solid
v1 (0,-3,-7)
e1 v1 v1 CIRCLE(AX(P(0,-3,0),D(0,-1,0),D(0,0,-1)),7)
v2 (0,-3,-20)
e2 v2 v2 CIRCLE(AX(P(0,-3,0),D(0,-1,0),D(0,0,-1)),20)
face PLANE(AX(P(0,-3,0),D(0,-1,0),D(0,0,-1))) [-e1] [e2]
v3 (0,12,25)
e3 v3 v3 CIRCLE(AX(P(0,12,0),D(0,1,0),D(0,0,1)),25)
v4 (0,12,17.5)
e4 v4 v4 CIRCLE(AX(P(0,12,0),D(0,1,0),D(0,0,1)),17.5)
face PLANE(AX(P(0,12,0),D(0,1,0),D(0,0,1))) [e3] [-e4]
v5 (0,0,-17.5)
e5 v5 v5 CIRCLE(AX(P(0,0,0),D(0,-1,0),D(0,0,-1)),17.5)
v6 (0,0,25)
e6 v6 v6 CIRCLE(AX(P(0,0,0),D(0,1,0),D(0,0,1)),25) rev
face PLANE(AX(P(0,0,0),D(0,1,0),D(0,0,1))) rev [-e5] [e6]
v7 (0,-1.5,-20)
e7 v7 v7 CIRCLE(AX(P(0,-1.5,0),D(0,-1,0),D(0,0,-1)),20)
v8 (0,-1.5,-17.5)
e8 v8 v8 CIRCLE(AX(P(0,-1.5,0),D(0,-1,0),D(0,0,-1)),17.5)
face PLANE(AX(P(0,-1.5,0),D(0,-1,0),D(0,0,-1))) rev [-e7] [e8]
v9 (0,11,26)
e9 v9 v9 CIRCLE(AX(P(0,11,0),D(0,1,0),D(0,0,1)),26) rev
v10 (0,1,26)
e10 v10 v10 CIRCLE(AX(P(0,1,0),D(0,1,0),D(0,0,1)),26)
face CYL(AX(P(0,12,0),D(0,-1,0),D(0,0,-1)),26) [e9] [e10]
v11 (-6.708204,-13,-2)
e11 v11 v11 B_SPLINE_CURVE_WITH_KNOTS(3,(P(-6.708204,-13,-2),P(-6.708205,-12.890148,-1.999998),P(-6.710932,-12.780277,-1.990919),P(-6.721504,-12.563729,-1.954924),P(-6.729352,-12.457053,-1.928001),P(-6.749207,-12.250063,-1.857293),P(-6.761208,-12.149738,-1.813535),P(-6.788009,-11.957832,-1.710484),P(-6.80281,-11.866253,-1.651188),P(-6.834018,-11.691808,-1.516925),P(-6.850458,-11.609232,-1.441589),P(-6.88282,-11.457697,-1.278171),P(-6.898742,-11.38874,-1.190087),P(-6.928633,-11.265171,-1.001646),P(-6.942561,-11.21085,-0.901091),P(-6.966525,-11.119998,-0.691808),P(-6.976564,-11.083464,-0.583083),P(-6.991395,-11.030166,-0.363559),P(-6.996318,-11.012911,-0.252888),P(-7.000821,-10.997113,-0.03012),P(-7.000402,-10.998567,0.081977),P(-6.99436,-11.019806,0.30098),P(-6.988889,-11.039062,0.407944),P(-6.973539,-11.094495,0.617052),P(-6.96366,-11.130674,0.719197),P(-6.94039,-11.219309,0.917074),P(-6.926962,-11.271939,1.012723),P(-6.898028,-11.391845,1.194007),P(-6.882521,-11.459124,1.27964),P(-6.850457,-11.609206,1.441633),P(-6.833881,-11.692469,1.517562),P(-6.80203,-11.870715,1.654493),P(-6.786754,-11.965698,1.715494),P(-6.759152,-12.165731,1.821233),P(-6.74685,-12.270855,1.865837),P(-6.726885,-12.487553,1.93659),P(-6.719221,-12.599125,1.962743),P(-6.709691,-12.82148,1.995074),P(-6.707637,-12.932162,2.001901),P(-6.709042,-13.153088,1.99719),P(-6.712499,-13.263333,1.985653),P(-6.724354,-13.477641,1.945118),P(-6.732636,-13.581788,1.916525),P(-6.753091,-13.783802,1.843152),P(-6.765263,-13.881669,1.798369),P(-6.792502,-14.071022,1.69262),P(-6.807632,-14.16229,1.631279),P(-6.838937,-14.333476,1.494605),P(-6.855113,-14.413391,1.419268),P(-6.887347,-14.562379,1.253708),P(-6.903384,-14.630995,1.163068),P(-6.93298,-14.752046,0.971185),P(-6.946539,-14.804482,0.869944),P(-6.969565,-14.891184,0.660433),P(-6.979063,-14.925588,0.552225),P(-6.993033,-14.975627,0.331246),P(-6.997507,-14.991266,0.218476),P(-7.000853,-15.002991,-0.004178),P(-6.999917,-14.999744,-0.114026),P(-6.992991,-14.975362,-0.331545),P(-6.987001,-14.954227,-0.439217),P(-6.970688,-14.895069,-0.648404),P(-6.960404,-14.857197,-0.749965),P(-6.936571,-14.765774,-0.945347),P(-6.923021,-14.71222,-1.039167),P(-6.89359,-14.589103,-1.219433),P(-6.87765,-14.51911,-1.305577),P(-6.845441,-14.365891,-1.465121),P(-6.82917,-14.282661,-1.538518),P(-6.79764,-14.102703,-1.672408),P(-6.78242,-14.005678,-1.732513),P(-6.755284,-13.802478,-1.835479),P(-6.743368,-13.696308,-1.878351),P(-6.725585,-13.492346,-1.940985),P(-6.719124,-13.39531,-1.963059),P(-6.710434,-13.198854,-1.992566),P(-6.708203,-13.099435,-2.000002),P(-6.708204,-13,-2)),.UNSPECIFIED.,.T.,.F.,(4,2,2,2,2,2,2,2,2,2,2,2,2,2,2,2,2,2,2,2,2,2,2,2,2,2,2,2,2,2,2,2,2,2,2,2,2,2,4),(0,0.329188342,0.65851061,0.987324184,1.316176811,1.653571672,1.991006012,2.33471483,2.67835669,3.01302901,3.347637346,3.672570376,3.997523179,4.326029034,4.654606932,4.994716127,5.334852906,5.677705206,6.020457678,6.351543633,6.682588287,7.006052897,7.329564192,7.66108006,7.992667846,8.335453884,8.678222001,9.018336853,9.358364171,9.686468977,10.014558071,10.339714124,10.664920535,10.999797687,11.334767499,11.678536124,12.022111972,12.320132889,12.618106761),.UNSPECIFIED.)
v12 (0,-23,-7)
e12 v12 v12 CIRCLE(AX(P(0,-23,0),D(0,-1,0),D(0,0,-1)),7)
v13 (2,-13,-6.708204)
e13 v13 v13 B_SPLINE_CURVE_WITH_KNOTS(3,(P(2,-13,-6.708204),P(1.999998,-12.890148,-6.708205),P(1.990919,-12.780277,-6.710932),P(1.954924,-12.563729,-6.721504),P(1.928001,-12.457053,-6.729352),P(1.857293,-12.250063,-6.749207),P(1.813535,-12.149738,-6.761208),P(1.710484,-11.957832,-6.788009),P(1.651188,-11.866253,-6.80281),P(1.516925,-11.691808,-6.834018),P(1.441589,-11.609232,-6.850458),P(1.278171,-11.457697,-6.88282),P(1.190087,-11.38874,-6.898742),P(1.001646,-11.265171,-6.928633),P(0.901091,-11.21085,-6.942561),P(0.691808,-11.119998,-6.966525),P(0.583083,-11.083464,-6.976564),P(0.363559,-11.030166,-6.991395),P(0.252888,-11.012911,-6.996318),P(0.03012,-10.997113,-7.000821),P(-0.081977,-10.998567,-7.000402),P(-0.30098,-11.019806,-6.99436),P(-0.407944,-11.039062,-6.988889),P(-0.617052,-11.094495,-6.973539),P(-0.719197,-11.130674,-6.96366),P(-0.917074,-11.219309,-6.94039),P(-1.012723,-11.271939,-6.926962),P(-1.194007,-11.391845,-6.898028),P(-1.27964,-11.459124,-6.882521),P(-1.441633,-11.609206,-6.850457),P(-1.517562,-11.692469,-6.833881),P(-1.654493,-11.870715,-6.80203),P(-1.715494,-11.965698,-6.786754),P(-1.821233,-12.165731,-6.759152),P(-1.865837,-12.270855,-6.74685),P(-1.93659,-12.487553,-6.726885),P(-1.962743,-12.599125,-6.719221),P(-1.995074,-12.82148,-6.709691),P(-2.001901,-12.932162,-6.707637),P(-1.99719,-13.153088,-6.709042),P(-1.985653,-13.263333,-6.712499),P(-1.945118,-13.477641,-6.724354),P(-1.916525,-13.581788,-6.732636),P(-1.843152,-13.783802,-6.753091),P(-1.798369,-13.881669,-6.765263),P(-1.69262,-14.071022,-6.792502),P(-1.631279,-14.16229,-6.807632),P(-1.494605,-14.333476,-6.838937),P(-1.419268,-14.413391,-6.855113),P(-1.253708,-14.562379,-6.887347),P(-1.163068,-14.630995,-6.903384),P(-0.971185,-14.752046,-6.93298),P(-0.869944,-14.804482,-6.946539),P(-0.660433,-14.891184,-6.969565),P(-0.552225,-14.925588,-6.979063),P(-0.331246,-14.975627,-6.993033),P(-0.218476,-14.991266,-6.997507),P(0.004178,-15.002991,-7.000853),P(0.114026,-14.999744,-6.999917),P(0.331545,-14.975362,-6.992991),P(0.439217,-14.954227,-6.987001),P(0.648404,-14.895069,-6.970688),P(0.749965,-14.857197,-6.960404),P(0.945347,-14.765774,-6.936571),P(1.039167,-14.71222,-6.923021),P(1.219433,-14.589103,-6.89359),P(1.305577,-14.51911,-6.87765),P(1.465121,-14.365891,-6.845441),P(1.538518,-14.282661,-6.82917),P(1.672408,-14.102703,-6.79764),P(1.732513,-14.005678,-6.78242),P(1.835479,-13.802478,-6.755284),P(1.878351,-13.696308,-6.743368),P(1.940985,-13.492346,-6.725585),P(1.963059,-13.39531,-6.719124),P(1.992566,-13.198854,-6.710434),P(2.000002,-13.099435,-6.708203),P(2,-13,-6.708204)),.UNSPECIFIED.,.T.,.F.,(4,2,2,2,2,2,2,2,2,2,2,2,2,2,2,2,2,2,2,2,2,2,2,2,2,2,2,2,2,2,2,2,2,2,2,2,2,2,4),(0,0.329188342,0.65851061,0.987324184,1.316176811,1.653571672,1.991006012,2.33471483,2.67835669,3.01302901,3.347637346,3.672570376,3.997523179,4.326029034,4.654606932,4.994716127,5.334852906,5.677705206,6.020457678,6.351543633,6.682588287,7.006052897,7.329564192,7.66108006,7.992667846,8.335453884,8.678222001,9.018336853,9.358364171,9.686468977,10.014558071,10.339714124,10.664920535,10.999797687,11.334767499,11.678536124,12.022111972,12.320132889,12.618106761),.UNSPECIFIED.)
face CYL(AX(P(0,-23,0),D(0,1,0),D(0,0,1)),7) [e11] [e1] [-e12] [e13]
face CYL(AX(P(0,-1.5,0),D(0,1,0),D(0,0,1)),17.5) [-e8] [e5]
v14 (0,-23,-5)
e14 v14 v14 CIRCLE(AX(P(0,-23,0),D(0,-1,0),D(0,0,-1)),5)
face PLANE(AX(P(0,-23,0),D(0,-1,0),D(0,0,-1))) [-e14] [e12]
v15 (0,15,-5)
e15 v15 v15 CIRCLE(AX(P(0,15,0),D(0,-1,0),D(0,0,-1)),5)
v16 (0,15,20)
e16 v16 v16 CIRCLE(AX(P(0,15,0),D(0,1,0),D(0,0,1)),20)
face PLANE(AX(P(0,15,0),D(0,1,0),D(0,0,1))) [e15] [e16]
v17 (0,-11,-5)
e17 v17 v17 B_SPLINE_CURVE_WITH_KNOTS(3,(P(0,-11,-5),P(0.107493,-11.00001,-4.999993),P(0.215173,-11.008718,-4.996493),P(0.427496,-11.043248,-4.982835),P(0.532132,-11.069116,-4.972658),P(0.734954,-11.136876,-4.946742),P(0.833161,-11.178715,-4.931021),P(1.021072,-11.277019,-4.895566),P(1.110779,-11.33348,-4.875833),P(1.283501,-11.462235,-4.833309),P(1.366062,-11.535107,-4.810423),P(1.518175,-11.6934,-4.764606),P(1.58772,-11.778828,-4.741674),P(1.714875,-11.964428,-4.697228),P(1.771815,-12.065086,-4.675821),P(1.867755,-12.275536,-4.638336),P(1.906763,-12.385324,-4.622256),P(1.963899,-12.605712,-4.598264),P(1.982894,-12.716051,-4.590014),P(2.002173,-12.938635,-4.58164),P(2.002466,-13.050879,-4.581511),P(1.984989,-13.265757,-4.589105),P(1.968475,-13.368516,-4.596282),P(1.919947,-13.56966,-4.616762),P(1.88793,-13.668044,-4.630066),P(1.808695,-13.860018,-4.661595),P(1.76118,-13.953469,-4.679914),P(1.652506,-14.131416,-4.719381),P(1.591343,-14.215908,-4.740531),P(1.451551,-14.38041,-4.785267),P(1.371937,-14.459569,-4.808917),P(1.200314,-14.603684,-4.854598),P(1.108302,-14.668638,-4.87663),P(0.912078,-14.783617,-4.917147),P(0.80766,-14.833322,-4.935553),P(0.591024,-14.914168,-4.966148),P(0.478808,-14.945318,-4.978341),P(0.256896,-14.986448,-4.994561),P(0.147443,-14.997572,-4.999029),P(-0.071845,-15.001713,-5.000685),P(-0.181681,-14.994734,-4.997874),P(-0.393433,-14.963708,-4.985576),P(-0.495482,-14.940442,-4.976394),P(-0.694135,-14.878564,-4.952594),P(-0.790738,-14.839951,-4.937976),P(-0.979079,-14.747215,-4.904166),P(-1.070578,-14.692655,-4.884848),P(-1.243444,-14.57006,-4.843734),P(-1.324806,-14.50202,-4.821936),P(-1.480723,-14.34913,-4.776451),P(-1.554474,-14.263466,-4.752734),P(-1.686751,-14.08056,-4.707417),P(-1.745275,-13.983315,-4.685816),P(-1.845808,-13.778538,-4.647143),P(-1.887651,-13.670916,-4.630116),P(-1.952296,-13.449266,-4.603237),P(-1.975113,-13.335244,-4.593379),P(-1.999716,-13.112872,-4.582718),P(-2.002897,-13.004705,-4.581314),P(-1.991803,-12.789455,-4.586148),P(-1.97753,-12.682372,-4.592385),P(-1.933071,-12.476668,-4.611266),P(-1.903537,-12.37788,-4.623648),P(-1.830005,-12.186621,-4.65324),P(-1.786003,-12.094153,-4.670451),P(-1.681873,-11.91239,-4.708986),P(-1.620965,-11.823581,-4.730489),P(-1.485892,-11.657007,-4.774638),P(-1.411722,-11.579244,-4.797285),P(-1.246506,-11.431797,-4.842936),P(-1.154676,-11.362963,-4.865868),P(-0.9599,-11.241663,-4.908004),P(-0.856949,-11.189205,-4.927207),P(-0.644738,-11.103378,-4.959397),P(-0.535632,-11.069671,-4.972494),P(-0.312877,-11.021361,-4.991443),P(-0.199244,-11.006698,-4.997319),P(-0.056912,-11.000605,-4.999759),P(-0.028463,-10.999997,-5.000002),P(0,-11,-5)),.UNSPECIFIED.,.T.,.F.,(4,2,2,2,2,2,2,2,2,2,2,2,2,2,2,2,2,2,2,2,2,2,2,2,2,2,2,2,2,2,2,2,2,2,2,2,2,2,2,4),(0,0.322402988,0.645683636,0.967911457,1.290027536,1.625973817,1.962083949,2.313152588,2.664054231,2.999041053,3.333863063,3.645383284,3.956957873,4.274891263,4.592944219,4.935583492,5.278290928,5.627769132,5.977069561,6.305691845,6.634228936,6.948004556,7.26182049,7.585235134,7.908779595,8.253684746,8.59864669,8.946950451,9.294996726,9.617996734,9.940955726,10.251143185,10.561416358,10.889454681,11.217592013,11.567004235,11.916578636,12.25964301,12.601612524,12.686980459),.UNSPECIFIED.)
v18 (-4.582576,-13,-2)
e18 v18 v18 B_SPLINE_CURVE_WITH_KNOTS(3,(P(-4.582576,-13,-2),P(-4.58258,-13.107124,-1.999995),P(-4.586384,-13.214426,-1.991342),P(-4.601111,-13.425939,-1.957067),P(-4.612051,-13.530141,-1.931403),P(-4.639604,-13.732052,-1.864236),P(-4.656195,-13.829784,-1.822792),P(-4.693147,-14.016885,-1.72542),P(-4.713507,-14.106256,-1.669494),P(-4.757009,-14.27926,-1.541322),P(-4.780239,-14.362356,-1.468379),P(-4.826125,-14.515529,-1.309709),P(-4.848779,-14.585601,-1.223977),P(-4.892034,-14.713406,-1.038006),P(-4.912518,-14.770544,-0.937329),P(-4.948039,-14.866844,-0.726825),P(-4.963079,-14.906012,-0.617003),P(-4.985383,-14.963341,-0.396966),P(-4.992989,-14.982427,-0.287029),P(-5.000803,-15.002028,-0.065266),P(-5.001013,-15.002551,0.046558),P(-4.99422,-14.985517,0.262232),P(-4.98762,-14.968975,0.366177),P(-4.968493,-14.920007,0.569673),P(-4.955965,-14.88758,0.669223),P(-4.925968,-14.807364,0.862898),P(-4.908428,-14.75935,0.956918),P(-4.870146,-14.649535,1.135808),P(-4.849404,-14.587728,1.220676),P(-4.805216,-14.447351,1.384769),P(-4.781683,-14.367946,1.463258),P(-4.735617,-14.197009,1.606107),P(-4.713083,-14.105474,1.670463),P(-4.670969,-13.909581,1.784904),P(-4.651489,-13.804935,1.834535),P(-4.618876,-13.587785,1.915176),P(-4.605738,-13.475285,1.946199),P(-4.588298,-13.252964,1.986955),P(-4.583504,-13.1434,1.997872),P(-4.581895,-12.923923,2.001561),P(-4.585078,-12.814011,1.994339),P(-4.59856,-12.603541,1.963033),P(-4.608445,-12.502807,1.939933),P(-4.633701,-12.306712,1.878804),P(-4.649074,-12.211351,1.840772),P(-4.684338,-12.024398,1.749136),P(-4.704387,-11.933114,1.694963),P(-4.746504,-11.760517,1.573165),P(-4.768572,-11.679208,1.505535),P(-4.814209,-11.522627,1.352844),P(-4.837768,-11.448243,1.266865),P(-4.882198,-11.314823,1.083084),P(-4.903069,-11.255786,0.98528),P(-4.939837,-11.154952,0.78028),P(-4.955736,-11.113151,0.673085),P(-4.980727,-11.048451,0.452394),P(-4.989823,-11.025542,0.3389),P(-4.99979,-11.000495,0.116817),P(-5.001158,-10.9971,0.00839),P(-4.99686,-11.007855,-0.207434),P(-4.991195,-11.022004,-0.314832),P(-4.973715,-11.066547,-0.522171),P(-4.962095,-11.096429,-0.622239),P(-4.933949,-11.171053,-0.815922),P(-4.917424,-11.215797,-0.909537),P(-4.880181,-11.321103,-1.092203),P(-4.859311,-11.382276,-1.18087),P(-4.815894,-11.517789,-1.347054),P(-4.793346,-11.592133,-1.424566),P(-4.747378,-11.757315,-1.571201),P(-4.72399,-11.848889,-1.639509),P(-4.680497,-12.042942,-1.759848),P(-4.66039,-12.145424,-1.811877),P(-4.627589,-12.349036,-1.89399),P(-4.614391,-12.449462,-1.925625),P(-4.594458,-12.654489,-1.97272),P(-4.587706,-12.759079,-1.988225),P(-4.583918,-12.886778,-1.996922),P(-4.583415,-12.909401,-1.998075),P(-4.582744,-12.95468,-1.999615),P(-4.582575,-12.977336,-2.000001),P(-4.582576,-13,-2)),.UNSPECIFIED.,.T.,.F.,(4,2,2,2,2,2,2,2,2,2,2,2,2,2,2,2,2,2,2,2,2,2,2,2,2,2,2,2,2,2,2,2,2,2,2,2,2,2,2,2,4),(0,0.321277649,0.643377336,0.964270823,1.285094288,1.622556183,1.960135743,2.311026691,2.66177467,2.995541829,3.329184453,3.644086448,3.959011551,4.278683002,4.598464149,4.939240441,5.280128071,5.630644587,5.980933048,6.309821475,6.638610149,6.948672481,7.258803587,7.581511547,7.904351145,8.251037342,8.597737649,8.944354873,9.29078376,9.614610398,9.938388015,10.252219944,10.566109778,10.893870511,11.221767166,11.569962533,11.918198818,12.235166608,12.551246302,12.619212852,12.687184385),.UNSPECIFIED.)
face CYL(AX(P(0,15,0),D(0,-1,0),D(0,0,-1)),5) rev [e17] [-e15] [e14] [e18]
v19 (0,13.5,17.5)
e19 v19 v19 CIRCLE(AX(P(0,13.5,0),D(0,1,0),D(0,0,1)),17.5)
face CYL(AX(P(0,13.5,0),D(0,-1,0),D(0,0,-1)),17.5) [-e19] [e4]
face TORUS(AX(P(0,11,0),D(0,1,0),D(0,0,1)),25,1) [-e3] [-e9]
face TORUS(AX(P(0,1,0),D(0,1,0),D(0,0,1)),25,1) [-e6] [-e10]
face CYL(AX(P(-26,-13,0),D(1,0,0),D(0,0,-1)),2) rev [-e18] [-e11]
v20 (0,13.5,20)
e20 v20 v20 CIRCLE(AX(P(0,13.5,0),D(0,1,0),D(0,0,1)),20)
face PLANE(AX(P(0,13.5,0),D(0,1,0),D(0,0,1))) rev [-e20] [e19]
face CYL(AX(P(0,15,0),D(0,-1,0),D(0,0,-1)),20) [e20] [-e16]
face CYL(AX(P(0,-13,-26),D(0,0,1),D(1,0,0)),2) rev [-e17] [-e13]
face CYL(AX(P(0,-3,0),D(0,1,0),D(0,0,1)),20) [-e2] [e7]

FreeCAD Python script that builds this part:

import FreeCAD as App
import Part
import Sketcher
from FreeCAD import Vector


def edges_at(feature, points):
    """Names of the edges that pass closest to the given points."""
    edges = feature.Shape.Edges
    near = lambda p: min(range(len(edges)), key=lambda i: edges[i].distToShape(Part.Vertex(*p))[0])
    return sorted({f"Edge{near(p) + 1}" for p in points})

doc = App.newDocument("Part")
body = doc.addObject("PartDesign::Body", "Body")

sketch1 = doc.addObject("Sketcher::SketchObject", "Sketch")
body.addObject(sketch1)
sketch1.AttachmentSupport = (doc.XZ_Plane, [""])
sketch1.MapMode = "FlatFace"
sketch1.addGeometry(Part.Circle(Vector(0, 0, 0), Vector(0, 0, 1), 26), False)
sketch1.addConstraint([
    Sketcher.Constraint("Coincident", 0, 3, -1, 1),
    Sketcher.Constraint("Diameter", 0, 52.0),
])
pad1 = doc.addObject("PartDesign::Pad", "Pad")
body.addObject(pad1)
pad1.Profile = sketch1
pad1.Length = 12
pad1.Reversed = True

sketch2 = doc.addObject("Sketcher::SketchObject", "Sketch001")
body.addObject(sketch2)
sketch2.AttachmentSupport = (doc.XZ_Plane, [""])
sketch2.MapMode = "FlatFace"
sketch2.AttachmentOffset = App.Placement(Vector(0, 0, -12), App.Rotation())
sketch2.addGeometry(Part.Circle(Vector(0, 0, 0), Vector(0, 0, 1), 18), False)
sketch2.addConstraint([
    Sketcher.Constraint("Coincident", 0, 3, -1, 1),
    Sketcher.Constraint("Diameter", 0, 35.0),
])
pad2 = doc.addObject("PartDesign::Pad", "Pad001")
body.addObject(pad2)
pad2.Profile = sketch2
pad2.Length = 1.5
pad2.Reversed = True

sketch3 = doc.addObject("Sketcher::SketchObject", "Sketch002")
body.addObject(sketch3)
sketch3.AttachmentSupport = (doc.XZ_Plane, [""])
sketch3.MapMode = "FlatFace"
sketch3.AttachmentOffset = App.Placement(Vector(0, 0, 1.5), App.Rotation())
sketch3.addGeometry(Part.Circle(Vector(0, 0, 0), Vector(0, 0, 1), 18), False)
sketch3.addConstraint([
    Sketcher.Constraint("Coincident", 0, 3, -1, 1),
    Sketcher.Constraint("Diameter", 0, 35.0),
])
pad3 = doc.addObject("PartDesign::Pad", "Pad002")
body.addObject(pad3)
pad3.Profile = sketch3
pad3.Length = 1.5
pad3.Reversed = True

sketch4 = doc.addObject("Sketcher::SketchObject", "Sketch003")
body.addObject(sketch4)
sketch4.AttachmentSupport = (doc.XZ_Plane, [""])
sketch4.MapMode = "FlatFace"
sketch4.AttachmentOffset = App.Placement(Vector(0, 0, -13.5), App.Rotation())
sketch4.addGeometry(Part.Circle(Vector(0, 0, 0), Vector(0, 0, 1), 20), False)
sketch4.addConstraint([
    Sketcher.Constraint("Coincident", 0, 3, -1, 1),
    Sketcher.Constraint("Diameter", 0, 40.0),
])
pad4 = doc.addObject("PartDesign::Pad", "Pad003")
body.addObject(pad4)
pad4.Profile = sketch4
pad4.Length = 1.5
pad4.Reversed = True

sketch5 = doc.addObject("Sketcher::SketchObject", "Sketch004")
body.addObject(sketch5)
sketch5.AttachmentSupport = (doc.XZ_Plane, [""])
sketch5.MapMode = "FlatFace"
sketch5.AttachmentOffset = App.Placement(Vector(0, 0, 3), App.Rotation())
sketch5.addGeometry(Part.Circle(Vector(0, 0, 0), Vector(0, 0, 1), 20), False)
sketch5.addConstraint([
    Sketcher.Constraint("Coincident", 0, 3, -1, 1),
    Sketcher.Constraint("Diameter", 0, 40.0),
])
pad5 = doc.addObject("PartDesign::Pad", "Pad004")
body.addObject(pad5)
pad5.Profile = sketch5
pad5.Length = 1.5
pad5.Reversed = True

sketch6 = doc.addObject("Sketcher::SketchObject", "Sketch005")
body.addObject(sketch6)
sketch6.AttachmentSupport = (doc.XZ_Plane, [""])
sketch6.MapMode = "FlatFace"
sketch6.AttachmentOffset = App.Placement(Vector(0, 0, 3), App.Rotation())
sketch6.addGeometry(Part.Circle(Vector(0, 0, 0), Vector(0, 0, 1), 5), False)
sketch6.addConstraint([
    Sketcher.Constraint("Coincident", 0, 3, -1, 1),
    Sketcher.Constraint("Diameter", 0, 10.0),
])
pocket1 = doc.addObject("PartDesign::Pocket", "Pocket")
body.addObject(pocket1)
pocket1.Profile = sketch6
pocket1.Type = "ThroughAll"

sketch7 = doc.addObject("Sketcher::SketchObject", "Sketch006")
body.addObject(sketch7)
sketch7.AttachmentSupport = (doc.XZ_Plane, [""])
sketch7.MapMode = "FlatFace"
sketch7.AttachmentOffset = App.Placement(Vector(0, 0, 23), App.Rotation())
sketch7.addGeometry([
    Part.Circle(Vector(0, 0, 0), Vector(0, 0, 1), 7),
    Part.Circle(Vector(0, 0, 0), Vector(0, 0, 1), 5),
], False)
sketch7.addConstraint([
    Sketcher.Constraint("Coincident", 0, 3, -1, 1),
    Sketcher.Constraint("Coincident", 1, 3, -1, 1),
    Sketcher.Constraint("Diameter", 0, 14.0),
    Sketcher.Constraint("Diameter", 1, 10.0),
])
pad6 = doc.addObject("PartDesign::Pad", "Pad005")
body.addObject(pad6)
pad6.Profile = sketch7
pad6.Length = 20
pad6.Reversed = True

sketch8 = doc.addObject("Sketcher::SketchObject", "Sketch007")
body.addObject(sketch8)
sketch8.AttachmentSupport = (doc.YZ_Plane, [""])
sketch8.MapMode = "FlatFace"
sketch8.addGeometry(Part.Circle(Vector(-13, 0, 0), Vector(0, 0, 1), 2), False)
sketch8.addConstraint([
    Sketcher.Constraint("PointOnObject", 0, 3, -1),
    Sketcher.Constraint("Diameter", 0, 4.0),
    Sketcher.Constraint("DistanceX", 0, 3, -1, 1, 13.0),
])
pocket2 = doc.addObject("PartDesign::Pocket", "Pocket001")
body.addObject(pocket2)
pocket2.Profile = sketch8
pocket2.Type = "ThroughAll"

sketch9 = doc.addObject("Sketcher::SketchObject", "Sketch008")
body.addObject(sketch9)
sketch9.AttachmentSupport = (doc.XY_Plane, [""])
sketch9.MapMode = "FlatFace"
sketch9.addGeometry(Part.Circle(Vector(0, -13, 0), Vector(0, 0, 1), 2), False)
sketch9.addConstraint([
    Sketcher.Constraint("PointOnObject", 0, 3, -2),
    Sketcher.Constraint("Diameter", 0, 4.0),
    Sketcher.Constraint("DistanceY", 0, 3, -1, 1, 13.0),
])
pocket3 = doc.addObject("PartDesign::Pocket", "Pocket002")
body.addObject(pocket3)
pocket3.Profile = sketch9
pocket3.Type = "ThroughAll"
doc.recompute()

fillet = doc.addObject("PartDesign::Fillet", "Fillet")
body.addObject(fillet)
fillet.Base = (pocket3, edges_at(pocket3, [(0, 12, -26)]))
fillet.Radius = 1
doc.recompute()

fillet2 = doc.addObject("PartDesign::Fillet", "Fillet001")
body.addObject(fillet2)
fillet2.Base = (fillet, edges_at(fillet, [(0, 0, -26)]))
fillet2.Radius = 1

doc.recompute()
